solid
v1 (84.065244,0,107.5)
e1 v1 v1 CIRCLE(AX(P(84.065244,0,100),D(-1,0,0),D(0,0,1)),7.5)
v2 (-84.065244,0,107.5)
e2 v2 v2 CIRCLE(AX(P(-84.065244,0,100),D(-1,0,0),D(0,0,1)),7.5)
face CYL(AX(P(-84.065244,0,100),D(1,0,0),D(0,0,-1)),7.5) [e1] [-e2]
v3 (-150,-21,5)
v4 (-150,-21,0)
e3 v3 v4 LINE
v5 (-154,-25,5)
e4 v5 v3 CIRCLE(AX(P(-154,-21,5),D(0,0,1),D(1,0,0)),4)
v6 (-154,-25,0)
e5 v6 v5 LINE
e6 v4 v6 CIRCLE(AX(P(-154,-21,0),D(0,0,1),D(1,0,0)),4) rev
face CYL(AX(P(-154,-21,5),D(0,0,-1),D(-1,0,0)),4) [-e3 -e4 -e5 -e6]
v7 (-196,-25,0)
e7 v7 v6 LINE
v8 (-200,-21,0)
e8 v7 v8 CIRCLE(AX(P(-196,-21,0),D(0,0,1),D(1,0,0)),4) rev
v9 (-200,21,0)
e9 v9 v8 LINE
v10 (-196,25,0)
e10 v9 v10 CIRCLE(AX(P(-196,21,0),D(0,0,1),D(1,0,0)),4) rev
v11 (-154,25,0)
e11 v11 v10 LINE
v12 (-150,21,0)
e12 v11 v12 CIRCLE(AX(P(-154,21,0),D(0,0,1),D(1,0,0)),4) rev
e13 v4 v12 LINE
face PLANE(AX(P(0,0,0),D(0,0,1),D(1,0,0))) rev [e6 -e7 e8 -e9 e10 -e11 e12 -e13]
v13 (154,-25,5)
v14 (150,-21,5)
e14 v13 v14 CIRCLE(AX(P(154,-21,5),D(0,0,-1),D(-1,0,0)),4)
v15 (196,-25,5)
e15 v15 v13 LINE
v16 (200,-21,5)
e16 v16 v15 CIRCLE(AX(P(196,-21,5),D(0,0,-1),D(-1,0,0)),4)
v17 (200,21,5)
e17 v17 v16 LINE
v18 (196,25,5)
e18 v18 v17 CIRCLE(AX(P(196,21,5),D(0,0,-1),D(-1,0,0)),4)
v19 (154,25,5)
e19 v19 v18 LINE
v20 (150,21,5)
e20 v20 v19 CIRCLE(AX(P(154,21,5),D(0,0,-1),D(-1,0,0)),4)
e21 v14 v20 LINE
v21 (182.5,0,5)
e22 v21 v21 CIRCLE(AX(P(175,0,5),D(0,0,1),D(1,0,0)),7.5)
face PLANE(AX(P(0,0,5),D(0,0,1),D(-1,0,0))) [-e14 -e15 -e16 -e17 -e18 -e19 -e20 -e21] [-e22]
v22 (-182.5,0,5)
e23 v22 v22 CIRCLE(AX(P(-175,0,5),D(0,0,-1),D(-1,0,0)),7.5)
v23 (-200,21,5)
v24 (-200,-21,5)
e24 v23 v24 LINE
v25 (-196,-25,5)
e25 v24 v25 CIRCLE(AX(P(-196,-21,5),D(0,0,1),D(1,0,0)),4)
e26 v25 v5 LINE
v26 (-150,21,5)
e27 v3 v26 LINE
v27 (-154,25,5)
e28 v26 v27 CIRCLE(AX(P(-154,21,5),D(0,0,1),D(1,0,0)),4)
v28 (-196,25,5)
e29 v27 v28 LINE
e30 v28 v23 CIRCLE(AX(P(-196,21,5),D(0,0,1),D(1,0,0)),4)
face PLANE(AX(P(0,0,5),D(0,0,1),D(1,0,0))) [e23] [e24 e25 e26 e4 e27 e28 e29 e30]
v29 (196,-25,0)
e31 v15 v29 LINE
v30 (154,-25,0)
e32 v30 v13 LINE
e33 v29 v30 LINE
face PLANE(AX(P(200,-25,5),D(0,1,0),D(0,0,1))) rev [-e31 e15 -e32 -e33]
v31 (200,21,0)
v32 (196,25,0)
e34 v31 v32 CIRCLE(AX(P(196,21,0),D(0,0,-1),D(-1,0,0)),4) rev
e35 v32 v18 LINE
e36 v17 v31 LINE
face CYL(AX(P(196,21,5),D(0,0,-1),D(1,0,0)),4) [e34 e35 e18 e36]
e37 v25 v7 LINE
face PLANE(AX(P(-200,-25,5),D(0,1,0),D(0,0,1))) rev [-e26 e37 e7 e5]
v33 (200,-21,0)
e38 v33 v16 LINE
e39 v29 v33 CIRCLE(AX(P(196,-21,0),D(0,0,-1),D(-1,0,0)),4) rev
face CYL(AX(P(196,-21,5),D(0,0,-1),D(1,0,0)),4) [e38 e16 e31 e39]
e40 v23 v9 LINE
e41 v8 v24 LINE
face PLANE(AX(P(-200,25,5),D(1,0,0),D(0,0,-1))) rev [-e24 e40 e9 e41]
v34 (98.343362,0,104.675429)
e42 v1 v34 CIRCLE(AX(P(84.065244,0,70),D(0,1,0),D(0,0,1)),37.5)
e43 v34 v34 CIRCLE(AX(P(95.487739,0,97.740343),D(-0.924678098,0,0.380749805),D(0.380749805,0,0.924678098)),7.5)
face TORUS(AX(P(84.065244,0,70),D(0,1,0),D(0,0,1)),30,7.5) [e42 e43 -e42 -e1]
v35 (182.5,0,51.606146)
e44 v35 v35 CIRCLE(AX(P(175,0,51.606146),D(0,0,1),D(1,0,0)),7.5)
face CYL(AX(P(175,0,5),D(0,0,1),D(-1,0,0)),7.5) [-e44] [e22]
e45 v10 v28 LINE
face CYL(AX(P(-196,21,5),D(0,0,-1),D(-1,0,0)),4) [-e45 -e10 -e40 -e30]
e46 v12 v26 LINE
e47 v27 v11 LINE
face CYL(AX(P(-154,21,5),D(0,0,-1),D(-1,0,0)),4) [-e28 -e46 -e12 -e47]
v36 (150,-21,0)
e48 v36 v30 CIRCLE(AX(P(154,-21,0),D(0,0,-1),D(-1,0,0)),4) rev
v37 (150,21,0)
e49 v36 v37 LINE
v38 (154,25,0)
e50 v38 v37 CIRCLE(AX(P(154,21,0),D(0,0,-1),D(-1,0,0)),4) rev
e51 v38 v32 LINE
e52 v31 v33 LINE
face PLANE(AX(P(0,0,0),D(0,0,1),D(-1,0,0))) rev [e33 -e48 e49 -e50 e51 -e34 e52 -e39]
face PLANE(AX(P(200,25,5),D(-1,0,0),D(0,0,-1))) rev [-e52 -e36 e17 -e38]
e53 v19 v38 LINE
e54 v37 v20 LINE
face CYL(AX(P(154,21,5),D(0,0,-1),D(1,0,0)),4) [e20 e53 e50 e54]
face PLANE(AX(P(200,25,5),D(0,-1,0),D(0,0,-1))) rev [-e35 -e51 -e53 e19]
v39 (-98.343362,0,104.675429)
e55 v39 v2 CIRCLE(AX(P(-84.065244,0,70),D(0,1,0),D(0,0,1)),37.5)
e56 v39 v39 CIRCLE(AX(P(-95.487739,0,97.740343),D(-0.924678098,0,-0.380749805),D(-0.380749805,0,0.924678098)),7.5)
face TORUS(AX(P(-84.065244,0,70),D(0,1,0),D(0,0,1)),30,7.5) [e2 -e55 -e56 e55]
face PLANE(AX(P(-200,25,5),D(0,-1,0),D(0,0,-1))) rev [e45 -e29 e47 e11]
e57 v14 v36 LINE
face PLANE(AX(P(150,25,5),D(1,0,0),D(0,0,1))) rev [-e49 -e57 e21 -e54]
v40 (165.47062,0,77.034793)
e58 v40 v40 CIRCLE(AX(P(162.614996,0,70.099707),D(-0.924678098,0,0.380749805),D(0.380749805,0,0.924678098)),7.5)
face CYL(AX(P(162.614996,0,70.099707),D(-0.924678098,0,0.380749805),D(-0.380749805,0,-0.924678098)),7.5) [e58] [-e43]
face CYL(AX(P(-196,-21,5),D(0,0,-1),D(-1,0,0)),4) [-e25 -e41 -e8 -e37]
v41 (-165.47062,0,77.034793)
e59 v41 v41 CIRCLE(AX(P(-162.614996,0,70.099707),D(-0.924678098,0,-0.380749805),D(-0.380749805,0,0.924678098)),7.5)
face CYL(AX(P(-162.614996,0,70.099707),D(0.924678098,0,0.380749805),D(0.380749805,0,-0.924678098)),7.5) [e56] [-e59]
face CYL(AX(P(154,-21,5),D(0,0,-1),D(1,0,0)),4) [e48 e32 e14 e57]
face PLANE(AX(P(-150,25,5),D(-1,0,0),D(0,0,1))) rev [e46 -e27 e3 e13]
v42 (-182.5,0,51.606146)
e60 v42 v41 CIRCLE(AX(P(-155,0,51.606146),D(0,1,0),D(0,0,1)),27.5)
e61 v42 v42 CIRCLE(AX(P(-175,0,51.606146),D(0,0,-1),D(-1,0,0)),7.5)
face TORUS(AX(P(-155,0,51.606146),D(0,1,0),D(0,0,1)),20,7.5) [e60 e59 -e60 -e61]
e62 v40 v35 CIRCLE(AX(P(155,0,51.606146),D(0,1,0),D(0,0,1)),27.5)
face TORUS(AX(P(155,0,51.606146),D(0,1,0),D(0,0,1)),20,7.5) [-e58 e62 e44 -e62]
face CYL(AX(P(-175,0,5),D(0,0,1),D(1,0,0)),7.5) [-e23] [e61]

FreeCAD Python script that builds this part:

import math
import FreeCAD as App
import Part
import Sketcher
Q = App.Units.Quantity


def edges_at(feature, points):
    """Names of the edges that pass closest to the given points."""
    edges = feature.Shape.Edges
    near = lambda p: min(range(len(edges)), key=lambda i: edges[i].distToShape(Part.Vertex(*p))[0])
    return sorted({f"Edge{near(p) + 1}" for p in points})

doc = App.newDocument("Part")
body = doc.addObject("PartDesign::Body", "Body")

sketch1 = doc.addObject("Sketcher::SketchObject", "Sketch")
body.addObject(sketch1)
sketch1.AttachmentSupport = (doc.XY_Plane, [""])
sketch1.MapMode = "FlatFace"
sketch1.addGeometry([
    Part.LineSegment(App.Vector(-200, 25, 0), App.Vector(-200, -25, 0)),
    Part.LineSegment(App.Vector(-200, -25, 0), App.Vector(-150, -25, 0)),
    Part.LineSegment(App.Vector(-150, -25, 0), App.Vector(-150, 25, 0)),
    Part.LineSegment(App.Vector(-150, 25, 0), App.Vector(-200, 25, 0)),
], False)
sketch1.addConstraint([
    Sketcher.Constraint("Coincident", 0, 2, 1, 1),
    Sketcher.Constraint("Coincident", 1, 2, 2, 1),
    Sketcher.Constraint("Coincident", 2, 2, 3, 1),
    Sketcher.Constraint("Coincident", 3, 2, 0, 1),
    Sketcher.Constraint("Vertical", 0),
    Sketcher.Constraint("Horizontal", 1),
    Sketcher.Constraint("Vertical", 2),
    Sketcher.Constraint("Horizontal", 3),
    Sketcher.Constraint("Equal", 3, 0),
    Sketcher.Constraint("DistanceX", 1, 1, 1, 2, Q("50 mm")),
    Sketcher.Constraint("DistanceX", 0, 2, -1, 1, Q("200 mm")),
    Sketcher.Constraint("DistanceY", 0, 2, -1, 1, Q("25 mm")),
])
pad1 = doc.addObject("PartDesign::Pad", "Pad")
body.addObject(pad1)
pad1.Profile = sketch1
pad1.Length = 5

sketch2 = doc.addObject("Sketcher::SketchObject", "Sketch001")
body.addObject(sketch2)
sketch2.AttachmentSupport = (doc.XY_Plane, [""])
sketch2.MapMode = "FlatFace"
sketch2.AttachmentOffset = App.Placement(App.Vector(0, 0, 5), App.Rotation())
sketch2.addGeometry(Part.Circle(App.Vector(-175, 0, 0), App.Vector(0, 0, 1), 7.5), False)
sketch2.addConstraint([
    Sketcher.Constraint("PointOnObject", 0, 3, -1),
    Sketcher.Constraint("Diameter", 0, Q("15 mm")),
    Sketcher.Constraint("DistanceX", 0, 3, -1, 1, Q("175 mm")),
])

sketch3 = doc.addObject("Sketcher::SketchObject", "Sketch002")
body.addObject(sketch3)
sketch3.AttachmentSupport = (doc.XZ_Plane, [""])
sketch3.MapMode = "FlatFace"
sketch3.addGeometry([
    Part.LineSegment(App.Vector(-175, 5, 0), App.Vector(-175, 51.606146, 0)),
    Part.ArcOfCircle(Part.Circle(App.Vector(-155, 51.606146, 0), App.Vector(0, 0, 1), 20), math.radians(112.380135), math.radians(180)),
    Part.LineSegment(App.Vector(-162.614996, 70.099707, 0), App.Vector(-95.487739, 97.740343, 0)),
    Part.ArcOfCircle(Part.Circle(App.Vector(-84.065244, 70, 0), App.Vector(0, 0, 1), 30), math.radians(90), math.radians(112.380135)),
    Part.LineSegment(App.Vector(-84.065244, 100, 0), App.Vector(0, 100, 0)),
], False)
sketch3.addConstraint([
    Sketcher.Constraint("Tangent", 0, 2, 1, 2),
    Sketcher.Constraint("Tangent", 1, 1, 2, 1),
    Sketcher.Constraint("Tangent", 2, 2, 3, 2),
    Sketcher.Constraint("Tangent", 3, 1, 4, 1),
    Sketcher.Constraint("Vertical", 0),
    Sketcher.Constraint("Horizontal", 4),
    Sketcher.Constraint("PointOnObject", 4, 2, -2),
    Sketcher.Constraint("Radius", 1, Q("20 mm")),
    Sketcher.Constraint("Radius", 3, Q("30 mm")),
    Sketcher.Constraint("DistanceX", 1, 3, -1, 1, Q("155 mm")),
    Sketcher.Constraint("DistanceY", -1, 1, 3, 3, Q("70 mm")),
    Sketcher.Constraint("DistanceY", -1, 1, 0, 1, Q("5 mm")),
    Sketcher.Constraint("Distance", 2, Q("72.595271 mm")),
    Sketcher.Constraint("DistanceX", 4, 1, 4, 2, Q("84.065244 mm")),
])
doc.recompute()

additivepipe = doc.addObject("PartDesign::AdditivePipe", "AdditivePipe")
body.addObject(additivepipe)
additivepipe.Profile = sketch2
additivepipe.Spine = (sketch3, ["Edge1", "Edge2", "Edge3", "Edge4", "Edge5"])
doc.recompute()

fillet = doc.addObject("PartDesign::Fillet", "Fillet")
body.addObject(fillet)
fillet.Base = (additivepipe, edges_at(additivepipe, [
    (-150, -25, 2.5),
    (-200, -25, 2.5),
    (-200, 25, 2.5),
    (-150, 25, 2.5),
]))
fillet.Radius = 4
body2 = doc.addObject("PartDesign::Body", "Body001")
doc.recompute()

body2.BaseFeature = body
doc.recompute()

mirroring = doc.addObject("Part::Mirroring", "Mirroring")
mirroring.Source = body
mirroring.Base = App.Vector(0, 0, 0)
mirroring.Normal = App.Vector(1, 0, 0)
body3 = doc.addObject("PartDesign::Body", "Body002")
body3.BaseFeature = mirroring
boolean = doc.addObject("PartDesign::Boolean", "Boolean")
body2.addObject(boolean)
boolean.Type = "Fuse"
boolean.addObjects([body3])
doc.recompute()
mirroring.Visibility = False

doc.recompute()
